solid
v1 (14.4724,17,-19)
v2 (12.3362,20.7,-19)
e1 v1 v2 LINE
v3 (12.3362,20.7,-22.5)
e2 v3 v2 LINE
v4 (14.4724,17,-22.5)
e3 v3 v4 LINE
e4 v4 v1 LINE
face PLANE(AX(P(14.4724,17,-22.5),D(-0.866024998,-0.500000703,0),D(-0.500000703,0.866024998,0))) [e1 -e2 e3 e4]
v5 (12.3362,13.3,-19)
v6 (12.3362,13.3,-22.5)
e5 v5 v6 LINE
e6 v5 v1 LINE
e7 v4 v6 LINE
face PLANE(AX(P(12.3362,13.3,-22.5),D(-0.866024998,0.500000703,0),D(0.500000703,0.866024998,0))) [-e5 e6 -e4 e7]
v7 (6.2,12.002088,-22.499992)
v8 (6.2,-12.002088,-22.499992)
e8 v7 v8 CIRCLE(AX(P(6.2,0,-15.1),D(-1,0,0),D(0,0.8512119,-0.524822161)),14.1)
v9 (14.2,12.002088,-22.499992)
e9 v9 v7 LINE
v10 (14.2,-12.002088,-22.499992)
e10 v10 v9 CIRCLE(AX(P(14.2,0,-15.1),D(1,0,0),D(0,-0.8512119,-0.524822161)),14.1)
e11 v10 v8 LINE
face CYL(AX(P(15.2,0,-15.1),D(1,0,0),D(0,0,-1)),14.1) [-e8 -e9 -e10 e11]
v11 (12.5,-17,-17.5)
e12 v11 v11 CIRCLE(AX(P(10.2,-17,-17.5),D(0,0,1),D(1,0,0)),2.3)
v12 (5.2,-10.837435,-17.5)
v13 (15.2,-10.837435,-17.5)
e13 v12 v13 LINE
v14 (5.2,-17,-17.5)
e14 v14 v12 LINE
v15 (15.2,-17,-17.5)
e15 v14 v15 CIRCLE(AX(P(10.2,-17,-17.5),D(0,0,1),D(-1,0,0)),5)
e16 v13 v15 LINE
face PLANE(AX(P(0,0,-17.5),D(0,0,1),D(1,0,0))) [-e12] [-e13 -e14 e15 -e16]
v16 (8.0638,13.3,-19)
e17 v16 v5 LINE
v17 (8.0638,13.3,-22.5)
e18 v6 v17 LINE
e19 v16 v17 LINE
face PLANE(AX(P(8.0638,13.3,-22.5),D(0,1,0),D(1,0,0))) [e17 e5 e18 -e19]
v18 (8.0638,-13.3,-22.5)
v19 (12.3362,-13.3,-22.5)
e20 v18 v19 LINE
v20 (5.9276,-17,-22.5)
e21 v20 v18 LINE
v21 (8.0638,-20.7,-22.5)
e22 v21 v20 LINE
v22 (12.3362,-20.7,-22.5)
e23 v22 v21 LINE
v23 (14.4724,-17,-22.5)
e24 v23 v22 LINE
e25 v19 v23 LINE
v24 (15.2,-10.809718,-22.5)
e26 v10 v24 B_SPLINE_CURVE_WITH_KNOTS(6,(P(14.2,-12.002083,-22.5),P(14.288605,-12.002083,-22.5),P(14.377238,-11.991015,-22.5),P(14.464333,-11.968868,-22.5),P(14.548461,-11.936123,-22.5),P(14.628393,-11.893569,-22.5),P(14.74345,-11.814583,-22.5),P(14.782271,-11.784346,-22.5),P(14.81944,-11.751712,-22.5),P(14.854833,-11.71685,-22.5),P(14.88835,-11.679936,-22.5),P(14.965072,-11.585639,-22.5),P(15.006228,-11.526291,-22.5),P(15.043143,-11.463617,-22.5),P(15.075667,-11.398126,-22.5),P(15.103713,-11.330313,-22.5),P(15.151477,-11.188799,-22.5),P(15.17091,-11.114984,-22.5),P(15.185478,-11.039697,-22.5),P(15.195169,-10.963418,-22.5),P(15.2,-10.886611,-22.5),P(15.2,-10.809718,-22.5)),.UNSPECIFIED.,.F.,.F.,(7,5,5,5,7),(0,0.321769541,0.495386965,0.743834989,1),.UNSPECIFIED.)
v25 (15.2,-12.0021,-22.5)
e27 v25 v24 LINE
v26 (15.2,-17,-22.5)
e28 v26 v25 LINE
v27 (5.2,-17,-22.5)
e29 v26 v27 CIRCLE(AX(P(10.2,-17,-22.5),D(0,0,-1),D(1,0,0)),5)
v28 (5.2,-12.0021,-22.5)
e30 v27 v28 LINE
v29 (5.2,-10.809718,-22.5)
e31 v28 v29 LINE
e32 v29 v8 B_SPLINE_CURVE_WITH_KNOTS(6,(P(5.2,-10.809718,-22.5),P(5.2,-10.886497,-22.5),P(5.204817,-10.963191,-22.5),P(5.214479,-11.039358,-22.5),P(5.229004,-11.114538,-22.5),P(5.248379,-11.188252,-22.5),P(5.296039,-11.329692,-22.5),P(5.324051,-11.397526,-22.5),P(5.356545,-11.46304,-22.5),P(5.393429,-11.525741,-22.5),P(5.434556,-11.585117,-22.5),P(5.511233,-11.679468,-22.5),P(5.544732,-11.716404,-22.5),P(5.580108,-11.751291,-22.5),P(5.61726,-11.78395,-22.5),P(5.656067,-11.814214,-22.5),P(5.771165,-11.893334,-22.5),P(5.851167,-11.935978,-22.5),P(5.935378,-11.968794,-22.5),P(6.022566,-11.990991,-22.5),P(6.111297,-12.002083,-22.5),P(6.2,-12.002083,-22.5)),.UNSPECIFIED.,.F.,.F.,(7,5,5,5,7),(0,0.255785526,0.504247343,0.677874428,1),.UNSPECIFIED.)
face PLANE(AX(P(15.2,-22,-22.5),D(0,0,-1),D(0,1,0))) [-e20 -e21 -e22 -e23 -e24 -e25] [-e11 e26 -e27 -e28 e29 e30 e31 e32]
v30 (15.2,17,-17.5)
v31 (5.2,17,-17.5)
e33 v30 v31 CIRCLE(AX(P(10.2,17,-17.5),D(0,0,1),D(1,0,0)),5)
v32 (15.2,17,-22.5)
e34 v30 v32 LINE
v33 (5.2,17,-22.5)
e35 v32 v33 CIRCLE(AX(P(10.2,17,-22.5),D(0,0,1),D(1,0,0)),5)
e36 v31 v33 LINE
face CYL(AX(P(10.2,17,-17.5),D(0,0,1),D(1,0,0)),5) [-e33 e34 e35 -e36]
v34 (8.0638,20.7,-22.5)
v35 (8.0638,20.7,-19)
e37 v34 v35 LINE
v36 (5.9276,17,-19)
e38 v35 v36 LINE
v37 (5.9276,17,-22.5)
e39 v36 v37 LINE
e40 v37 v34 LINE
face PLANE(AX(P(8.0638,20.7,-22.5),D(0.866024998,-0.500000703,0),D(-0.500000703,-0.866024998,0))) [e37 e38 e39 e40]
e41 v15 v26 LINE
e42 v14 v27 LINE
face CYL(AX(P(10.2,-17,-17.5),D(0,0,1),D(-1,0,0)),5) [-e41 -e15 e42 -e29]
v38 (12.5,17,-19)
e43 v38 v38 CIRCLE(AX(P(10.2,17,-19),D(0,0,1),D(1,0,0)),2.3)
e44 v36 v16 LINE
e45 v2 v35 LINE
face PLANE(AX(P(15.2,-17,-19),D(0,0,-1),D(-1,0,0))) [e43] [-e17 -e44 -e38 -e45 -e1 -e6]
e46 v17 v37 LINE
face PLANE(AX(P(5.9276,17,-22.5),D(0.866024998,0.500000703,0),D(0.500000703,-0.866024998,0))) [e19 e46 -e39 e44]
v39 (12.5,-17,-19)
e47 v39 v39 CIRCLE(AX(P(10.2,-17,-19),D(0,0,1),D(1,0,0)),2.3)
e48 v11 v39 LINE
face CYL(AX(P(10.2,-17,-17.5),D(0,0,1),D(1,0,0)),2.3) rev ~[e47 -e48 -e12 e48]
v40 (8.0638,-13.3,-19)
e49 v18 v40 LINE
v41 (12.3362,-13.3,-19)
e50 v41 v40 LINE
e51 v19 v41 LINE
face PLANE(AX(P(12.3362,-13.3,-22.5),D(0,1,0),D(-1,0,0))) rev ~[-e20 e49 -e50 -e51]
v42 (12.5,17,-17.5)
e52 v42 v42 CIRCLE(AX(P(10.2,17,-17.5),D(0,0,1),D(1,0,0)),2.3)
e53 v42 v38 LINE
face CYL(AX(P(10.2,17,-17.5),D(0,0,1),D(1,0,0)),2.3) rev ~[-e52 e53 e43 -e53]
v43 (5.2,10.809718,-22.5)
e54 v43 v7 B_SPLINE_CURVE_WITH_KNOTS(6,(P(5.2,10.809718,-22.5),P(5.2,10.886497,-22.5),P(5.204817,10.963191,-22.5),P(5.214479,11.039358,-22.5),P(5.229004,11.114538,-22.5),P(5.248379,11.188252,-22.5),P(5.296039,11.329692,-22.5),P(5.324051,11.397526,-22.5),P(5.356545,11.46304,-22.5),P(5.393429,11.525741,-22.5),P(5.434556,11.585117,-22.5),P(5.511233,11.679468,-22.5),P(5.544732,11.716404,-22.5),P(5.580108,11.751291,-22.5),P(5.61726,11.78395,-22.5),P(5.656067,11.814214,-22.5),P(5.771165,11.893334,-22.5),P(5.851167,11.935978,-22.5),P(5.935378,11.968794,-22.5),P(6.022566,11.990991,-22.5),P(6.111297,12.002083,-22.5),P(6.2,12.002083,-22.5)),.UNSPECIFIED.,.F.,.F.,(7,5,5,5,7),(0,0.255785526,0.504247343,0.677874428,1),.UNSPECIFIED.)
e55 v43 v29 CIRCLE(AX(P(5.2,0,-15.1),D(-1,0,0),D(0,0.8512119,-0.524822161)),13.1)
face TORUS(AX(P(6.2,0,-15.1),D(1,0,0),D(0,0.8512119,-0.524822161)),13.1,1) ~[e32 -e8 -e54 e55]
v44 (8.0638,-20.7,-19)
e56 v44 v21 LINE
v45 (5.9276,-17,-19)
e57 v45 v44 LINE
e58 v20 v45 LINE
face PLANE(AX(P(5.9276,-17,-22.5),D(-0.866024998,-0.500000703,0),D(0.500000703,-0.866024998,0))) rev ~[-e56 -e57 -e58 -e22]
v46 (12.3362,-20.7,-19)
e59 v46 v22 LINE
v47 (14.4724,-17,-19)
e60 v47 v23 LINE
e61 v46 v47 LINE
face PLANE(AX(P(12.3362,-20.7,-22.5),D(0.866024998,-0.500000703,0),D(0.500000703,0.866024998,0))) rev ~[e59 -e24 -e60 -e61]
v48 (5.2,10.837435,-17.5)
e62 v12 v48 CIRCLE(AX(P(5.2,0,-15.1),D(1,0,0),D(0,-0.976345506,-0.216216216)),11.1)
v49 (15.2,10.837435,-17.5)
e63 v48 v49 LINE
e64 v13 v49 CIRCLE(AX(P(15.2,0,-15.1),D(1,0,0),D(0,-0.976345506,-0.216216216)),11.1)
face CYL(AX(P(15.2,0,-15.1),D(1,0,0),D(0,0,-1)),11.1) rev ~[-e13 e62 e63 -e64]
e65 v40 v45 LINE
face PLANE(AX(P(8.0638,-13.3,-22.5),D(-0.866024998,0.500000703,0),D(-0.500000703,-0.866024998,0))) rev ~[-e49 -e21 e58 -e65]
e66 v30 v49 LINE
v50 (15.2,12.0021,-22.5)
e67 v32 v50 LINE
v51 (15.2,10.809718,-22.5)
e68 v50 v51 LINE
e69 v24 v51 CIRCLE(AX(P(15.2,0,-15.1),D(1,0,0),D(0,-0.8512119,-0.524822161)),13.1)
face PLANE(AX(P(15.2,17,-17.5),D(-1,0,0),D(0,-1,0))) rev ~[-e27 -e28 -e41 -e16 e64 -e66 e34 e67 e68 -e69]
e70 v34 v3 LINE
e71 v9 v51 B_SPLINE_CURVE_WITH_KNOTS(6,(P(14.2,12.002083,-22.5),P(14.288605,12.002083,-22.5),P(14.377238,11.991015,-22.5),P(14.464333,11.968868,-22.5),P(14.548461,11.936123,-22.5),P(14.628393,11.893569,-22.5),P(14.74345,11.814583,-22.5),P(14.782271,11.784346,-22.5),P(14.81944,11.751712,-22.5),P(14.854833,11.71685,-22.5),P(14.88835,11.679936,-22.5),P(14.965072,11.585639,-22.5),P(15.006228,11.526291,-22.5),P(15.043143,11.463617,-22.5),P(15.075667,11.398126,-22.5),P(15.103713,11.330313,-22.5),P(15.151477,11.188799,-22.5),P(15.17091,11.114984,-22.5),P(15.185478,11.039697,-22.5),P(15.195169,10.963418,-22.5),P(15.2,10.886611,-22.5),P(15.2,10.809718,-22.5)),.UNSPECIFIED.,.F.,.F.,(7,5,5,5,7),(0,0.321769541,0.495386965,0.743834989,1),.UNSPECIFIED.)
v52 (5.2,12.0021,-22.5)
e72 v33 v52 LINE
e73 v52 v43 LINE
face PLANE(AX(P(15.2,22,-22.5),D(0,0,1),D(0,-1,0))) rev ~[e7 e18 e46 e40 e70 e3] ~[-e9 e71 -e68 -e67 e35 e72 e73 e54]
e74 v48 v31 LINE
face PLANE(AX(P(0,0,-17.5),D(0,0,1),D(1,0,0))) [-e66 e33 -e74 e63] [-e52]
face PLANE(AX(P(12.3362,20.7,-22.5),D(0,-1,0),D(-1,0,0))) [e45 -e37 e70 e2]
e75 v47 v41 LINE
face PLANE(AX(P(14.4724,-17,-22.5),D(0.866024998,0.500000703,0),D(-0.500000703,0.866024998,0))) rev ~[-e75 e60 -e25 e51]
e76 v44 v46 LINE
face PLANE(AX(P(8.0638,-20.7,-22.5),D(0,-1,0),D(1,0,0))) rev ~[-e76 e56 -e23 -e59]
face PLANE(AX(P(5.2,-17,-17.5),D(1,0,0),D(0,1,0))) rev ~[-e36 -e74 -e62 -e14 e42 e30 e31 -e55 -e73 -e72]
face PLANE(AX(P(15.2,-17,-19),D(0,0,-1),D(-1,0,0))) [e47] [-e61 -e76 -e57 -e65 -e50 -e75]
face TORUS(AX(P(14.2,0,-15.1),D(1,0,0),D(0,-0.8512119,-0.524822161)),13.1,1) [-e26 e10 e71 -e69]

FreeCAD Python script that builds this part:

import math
import FreeCAD as App
import Part
import Sketcher

V = App.Vector
Q = App.Units.Quantity


def edges_at(feature, points):
    """Names of the edges that pass closest to the given points."""
    edges = feature.Shape.Edges
    near = lambda p: min(range(len(edges)), key=lambda i: edges[i].distToShape(Part.Vertex(*p))[0])
    return sorted({f"Edge{near(p) + 1}" for p in points})


def add_polygon(sketch, points):
    """Adds a closed chain of lines whose ends are joined by coincident constraints."""
    first, n = sketch.GeometryCount, len(points)
    for a, b in zip(points, points[1:] + points[:1]):
        sketch.addGeometry(Part.LineSegment(App.Vector(*a, 0), App.Vector(*b, 0)), False)
    for i in range(n):
        sketch.addConstraint(Sketcher.Constraint("Coincident", first + i, 2, first + (i + 1) % n, 1))

doc = App.newDocument("Part")
body = doc.addObject("PartDesign::Body", "Body")

# Sketch on XY plane
sketch1 = body.newObject("Sketcher::SketchObject", "Sketch")
sketch1.AttachmentSupport = (doc.getObject("XY_Plane"), [""])
sketch1.MapMode = "FlatFace"
sketch1.AttachmentOffset = App.Placement(V(0, 0, -17.5), App.Rotation())
sketch1.addGeometry([
    Part.LineSegment(V(5.2, 17, 0), V(5.2, -17, 0)),  # 0
    Part.ArcOfCircle(Part.Circle(V(10.2, -17, 0), V(0, 0, 1), 5), math.radians(180), math.radians(360)),  # 1
    Part.LineSegment(V(15.2, -17, 0), V(15.2, 17, 0)),  # 2
    Part.ArcOfCircle(Part.Circle(V(10.2, 17, 0), V(0, 0, 1), 5), math.radians(0), math.radians(180)),  # 3
    Part.Circle(V(10.2, -17, 0), V(0, 0, 1), 2.3),  # 4
    Part.Circle(V(10.2, 17, 0), V(0, 0, 1), 2.3),  # 5
], False)
sketch1.addConstraint([
    Sketcher.Constraint("Tangent", 0, 2, 1, 1),
    Sketcher.Constraint("Tangent", 1, 2, 2, 1),
    Sketcher.Constraint("Tangent", 2, 2, 3, 1),
    Sketcher.Constraint("Tangent", 3, 2, 0, 1),
    Sketcher.Constraint("Vertical", 0),
    Sketcher.Constraint("Vertical", 2),
    Sketcher.Constraint("Coincident", 4, 3, 1, 3),
    Sketcher.Constraint("Coincident", 5, 3, 3, 3),
    Sketcher.Constraint("Equal", 4, 5),
    Sketcher.Constraint("Radius", 1, 5.0),
    Sketcher.Constraint("Diameter", 4, 4.6),
    Sketcher.Constraint("DistanceY", 0, 2, 0, 1, 34.0),
    Sketcher.Constraint("DistanceY", 1, 3, -1, 1, 17.0),
    Sketcher.Constraint("DistanceX", -1, 1, 0, 2, 5.2),
])
pad1 = body.newObject("PartDesign::Pad", "Pad")
pad1.Profile = sketch1
pad1.Length = 15
pad1.Reversed = True

# Sketch on YZ plane
sketch2 = body.newObject("Sketcher::SketchObject", "Sketch001")
sketch2.AttachmentSupport = (doc.getObject("YZ_Plane"), [""])
sketch2.MapMode = "FlatFace"
sketch2.AttachmentOffset = App.Placement(V(0, 0, 15.2), App.Rotation())
sketch2.addGeometry(Part.Circle(V(0, -15.1, 0), V(0, 0, 1), 11.1), False)  # 0
add_polygon(sketch2, [(-45.4, -53.5), (53.9, -53.5), (53.9, 4.9), (-45.4, 4.9)])  # lines 1-4
sketch2.addGeometry(Part.ArcOfCircle(Part.Circle(V(0, -15.1, 0), V(0, 0, 1), 14.1), math.radians(9), math.radians(166)), False)  # 5
sketch2.addGeometry(Part.LineSegment(V(13.9, -12.8, 0), V(21.5, -13.2, 0)), False)  # 6
sketch2.addGeometry(Part.LineSegment(V(21.5, -13.2, 0), V(22, -15.4, 0)), False)  # 7
sketch2.addGeometry(Part.LineSegment(V(22, -15.4, 0), V(22, -22.5, 0)), False)  # 8
sketch2.addGeometry(Part.LineSegment(V(22, -22.5, 0), V(12, -22.5, 0)), False)  # 9
sketch2.addGeometry(Part.ArcOfCircle(Part.Circle(V(0, -15.1, 0), V(0, 0, 1), 14.1), math.radians(-148), math.radians(-32)), False)  # 10
sketch2.addGeometry(Part.LineSegment(V(-12, -22.5, 0), V(-22, -22.5, 0)), False)  # 11
sketch2.addGeometry(Part.LineSegment(V(-22, -22.5, 0), V(-39.1, -25.2, 0)), False)  # 12
sketch2.addGeometry(Part.LineSegment(V(-39.1, -25.2, 0), V(-33.6, -5.4, 0)), False)  # 13
sketch2.addGeometry(Part.LineSegment(V(-33.6, -5.4, 0), V(-13.7, -11.7, 0)), False)  # 14
sketch2.addConstraint([
    Sketcher.Constraint("Coincident", 5, 1, 6, 1),
    Sketcher.Constraint("Coincident", 6, 2, 7, 1),
    Sketcher.Constraint("Coincident", 7, 2, 8, 1),
    Sketcher.Constraint("Coincident", 8, 2, 9, 1),
    Sketcher.Constraint("Coincident", 9, 2, 10, 2),
    Sketcher.Constraint("Coincident", 10, 1, 11, 1),
    Sketcher.Constraint("Coincident", 11, 2, 12, 1),
    Sketcher.Constraint("Coincident", 12, 2, 13, 1),
    Sketcher.Constraint("Coincident", 13, 2, 14, 1),
    Sketcher.Constraint("Coincident", 14, 2, 5, 2),
    Sketcher.Constraint("Horizontal", 1),
    Sketcher.Constraint("Vertical", 2),
    Sketcher.Constraint("Horizontal", 3),
    Sketcher.Constraint("Vertical", 4),
    Sketcher.Constraint("Horizontal", 9),
    Sketcher.Constraint("Horizontal", 11),
    Sketcher.Constraint("Coincident", 5, 3, 0, 3),
    Sketcher.Constraint("Coincident", 10, 3, 0, 3),
    Sketcher.Constraint("Equal", 5, 10),
    Sketcher.Constraint("Symmetric", 9, 2, 10, 1, -2),
    Sketcher.Constraint("Equal", 9, 11),
    Sketcher.Constraint("Diameter", 0, 22.2),
    Sketcher.Constraint("DistanceX", -1, 1, 8, 2, 22.0),
    Sketcher.Constraint("DistanceY", 0, 3, -1, 1, 15.1),
    Sketcher.Constraint("Radius", 5, 14.1),
    Sketcher.Constraint("DistanceX", -1, 1, 6, 2, 21.5),
    Sketcher.Constraint("DistanceY", 8, 2, -1, 1, 22.5),
    Sketcher.Constraint("Angle", 6, Q("-2.77 deg")),
    Sketcher.Constraint("Angle", 8, Q("-90.1195 deg")),
    Sketcher.Constraint("DistanceY", 2, 1, 2, 2, 58.415),
    Sketcher.Constraint("DistanceX", 12, 2, 10, 1, 27.14),
    Sketcher.Constraint("DistanceX", 13, 2, 10, 1, 21.58),
    Sketcher.Constraint("Distance", 12, 17.357),
    Sketcher.Constraint("DistanceX", 1, 1, 1, 2, 99.2187),
    Sketcher.Constraint("DistanceY", -1, 1, 2, 2, 4.892),
    Sketcher.Constraint("DistanceY", 6, 2, -1, 1, 13.181),
    Sketcher.Constraint("DistanceX", 5, 1, 2, 2, 39.942),
    Sketcher.Constraint("DistanceY", 13, 2, 3, 2, 10.262),
    Sketcher.Constraint("Distance", 7, 2.2803),
    Sketcher.Constraint("Distance", 14, 20.8806),
])
pocket1 = body.newObject("PartDesign::Pocket", "Pocket")
pocket1.Profile = sketch2
pocket1.Length = 10

# Sketch on XY plane
sketch3 = body.newObject("Sketcher::SketchObject", "Sketch002")
sketch3.AttachmentSupport = (doc.getObject("XY_Plane"), [""])
sketch3.MapMode = "FlatFace"
sketch3.AttachmentOffset = App.Placement(V(0, 0, -22.5), App.Rotation())
add_polygon(sketch3, [(14.5, 17), (12.3, 13.3), (8.1, 13.3), (5.9, 17), (8.1, 20.7), (12.3, 20.7)])  # lines 0-5
add_polygon(sketch3, [(12.3, -13.3), (14.5, -17), (12.3, -20.7), (8.1, -20.7), (5.9, -17), (8.1, -13.3)])  # lines 6-11
sketch3.addConstraint([
    Sketcher.Constraint("Horizontal", 1),
    Sketcher.Constraint("Horizontal", 4),
    Sketcher.Constraint("Horizontal", 8),
    Sketcher.Constraint("Horizontal", 11),
    Sketcher.Constraint("Symmetric", 5, 2, 6, 2, -1),
    Sketcher.Constraint("Symmetric", 4, 2, 7, 2, -1),
    Sketcher.Constraint("Symmetric", 2, 2, 9, 2, -1),
    Sketcher.Constraint("Symmetric", 1, 2, 10, 2, -1),
    Sketcher.Constraint("Parallel", 0, 3),
    Sketcher.Constraint("Parallel", 2, 5),
    Sketcher.Constraint("Parallel", 5, 6),
    Sketcher.Constraint("Parallel", 3, 7),
    Sketcher.Constraint("Parallel", 6, 9),
    Sketcher.Constraint("Horizontal", 2, 2, 5, 2),
    Sketcher.Constraint("Vertical", 1, 2, 3, 2),
    Sketcher.Constraint("DistanceY", 1, 2, 3, 2, 7.4),
    Sketcher.Constraint("Angle", 0, Q("-120 deg")),
    Sketcher.Constraint("DistanceY", -1, 1, 2, 2, 17.0),
    Sketcher.Constraint("DistanceX", 1, 2, 1, 1, 4.2724),
    Sketcher.Constraint("DistanceX", -1, 1, 0, 2, 12.3362),
])
pocket2 = body.newObject("PartDesign::Pocket", "Pocket001")
pocket2.Profile = sketch3
pocket2.Type = "TwoLengths"
pocket2.Length = 10
pocket2.Length2 = 3.5
doc.recompute()

fillet = body.newObject("PartDesign::Fillet", "Fillet")
fillet.Base = (pocket2, edges_at(pocket2, [(15.2, 0, -29.2), (5.2, 0, -29.2)]))
fillet.Radius = 1

doc.recompute()
